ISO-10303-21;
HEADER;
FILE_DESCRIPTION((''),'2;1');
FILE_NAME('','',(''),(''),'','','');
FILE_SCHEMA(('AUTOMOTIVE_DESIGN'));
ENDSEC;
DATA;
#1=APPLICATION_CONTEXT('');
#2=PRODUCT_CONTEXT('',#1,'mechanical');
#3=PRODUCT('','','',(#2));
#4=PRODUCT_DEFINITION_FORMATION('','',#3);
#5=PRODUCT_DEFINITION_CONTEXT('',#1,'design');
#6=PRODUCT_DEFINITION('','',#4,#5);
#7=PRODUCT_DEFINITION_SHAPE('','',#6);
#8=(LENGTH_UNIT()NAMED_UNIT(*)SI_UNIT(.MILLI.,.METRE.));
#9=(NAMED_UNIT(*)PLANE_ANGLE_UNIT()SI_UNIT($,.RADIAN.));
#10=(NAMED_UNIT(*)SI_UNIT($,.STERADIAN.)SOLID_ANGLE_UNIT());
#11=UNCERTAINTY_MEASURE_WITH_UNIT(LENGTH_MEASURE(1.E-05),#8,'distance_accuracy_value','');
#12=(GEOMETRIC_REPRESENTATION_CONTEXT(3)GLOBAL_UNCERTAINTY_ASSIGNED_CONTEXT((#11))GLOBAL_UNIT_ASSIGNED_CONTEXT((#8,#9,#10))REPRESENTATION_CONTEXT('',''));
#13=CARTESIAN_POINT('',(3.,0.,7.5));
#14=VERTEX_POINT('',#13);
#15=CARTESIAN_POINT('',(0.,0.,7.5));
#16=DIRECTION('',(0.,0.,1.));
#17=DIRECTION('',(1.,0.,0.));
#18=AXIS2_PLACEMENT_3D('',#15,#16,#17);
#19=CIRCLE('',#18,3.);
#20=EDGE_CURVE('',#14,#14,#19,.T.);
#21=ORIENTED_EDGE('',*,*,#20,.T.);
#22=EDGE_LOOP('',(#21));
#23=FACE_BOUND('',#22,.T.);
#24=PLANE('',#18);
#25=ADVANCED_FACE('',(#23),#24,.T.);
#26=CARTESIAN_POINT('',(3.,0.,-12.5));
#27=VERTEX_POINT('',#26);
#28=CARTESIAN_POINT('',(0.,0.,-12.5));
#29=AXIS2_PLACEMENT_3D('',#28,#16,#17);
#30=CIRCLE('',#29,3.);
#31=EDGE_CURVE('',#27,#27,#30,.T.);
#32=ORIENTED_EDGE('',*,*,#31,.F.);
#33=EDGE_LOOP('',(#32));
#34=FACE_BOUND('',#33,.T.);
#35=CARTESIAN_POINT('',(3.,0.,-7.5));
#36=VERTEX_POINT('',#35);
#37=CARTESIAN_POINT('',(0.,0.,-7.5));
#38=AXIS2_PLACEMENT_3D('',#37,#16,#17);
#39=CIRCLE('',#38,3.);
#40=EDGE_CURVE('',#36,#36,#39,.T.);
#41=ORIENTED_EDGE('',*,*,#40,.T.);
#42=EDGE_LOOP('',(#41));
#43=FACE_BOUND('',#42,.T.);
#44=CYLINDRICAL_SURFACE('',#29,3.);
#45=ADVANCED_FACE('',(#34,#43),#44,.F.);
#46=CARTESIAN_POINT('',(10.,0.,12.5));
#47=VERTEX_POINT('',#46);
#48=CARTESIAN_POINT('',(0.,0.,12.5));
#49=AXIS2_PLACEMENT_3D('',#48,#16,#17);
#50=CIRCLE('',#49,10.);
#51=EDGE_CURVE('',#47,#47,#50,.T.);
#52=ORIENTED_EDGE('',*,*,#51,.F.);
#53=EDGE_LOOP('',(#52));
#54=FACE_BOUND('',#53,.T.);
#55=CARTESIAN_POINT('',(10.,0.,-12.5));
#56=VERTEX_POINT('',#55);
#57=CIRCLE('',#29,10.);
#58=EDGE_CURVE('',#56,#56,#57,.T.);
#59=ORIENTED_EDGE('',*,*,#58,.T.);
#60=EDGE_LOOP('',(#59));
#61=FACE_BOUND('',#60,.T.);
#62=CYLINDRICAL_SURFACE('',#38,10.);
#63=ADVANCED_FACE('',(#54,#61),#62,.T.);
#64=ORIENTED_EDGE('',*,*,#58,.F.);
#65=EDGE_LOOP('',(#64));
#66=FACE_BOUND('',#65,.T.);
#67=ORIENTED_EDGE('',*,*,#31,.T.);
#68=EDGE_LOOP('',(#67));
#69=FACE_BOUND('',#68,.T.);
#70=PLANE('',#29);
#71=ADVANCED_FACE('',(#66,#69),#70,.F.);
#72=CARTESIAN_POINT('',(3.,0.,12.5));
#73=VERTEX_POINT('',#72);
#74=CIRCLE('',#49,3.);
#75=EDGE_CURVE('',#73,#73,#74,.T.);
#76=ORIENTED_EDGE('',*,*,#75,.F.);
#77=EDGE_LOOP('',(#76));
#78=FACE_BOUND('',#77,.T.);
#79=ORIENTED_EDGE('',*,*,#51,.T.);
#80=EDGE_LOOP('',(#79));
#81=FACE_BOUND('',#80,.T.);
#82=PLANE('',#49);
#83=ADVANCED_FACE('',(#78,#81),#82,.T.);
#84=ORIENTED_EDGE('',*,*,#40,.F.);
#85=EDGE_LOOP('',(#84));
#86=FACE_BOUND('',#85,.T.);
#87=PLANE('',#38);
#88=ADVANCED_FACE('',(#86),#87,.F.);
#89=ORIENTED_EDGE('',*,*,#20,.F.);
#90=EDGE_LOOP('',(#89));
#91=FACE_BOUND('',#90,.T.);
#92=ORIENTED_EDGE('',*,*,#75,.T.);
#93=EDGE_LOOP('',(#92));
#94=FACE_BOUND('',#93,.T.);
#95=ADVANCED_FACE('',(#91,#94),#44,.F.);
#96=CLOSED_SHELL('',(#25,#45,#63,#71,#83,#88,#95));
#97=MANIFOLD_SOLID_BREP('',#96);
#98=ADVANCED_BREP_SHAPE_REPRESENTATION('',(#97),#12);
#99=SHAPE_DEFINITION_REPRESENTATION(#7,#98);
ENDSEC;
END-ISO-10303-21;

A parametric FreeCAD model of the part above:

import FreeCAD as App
import Part
import Sketcher

doc = App.newDocument("Part")
params = doc.addObject("Spreadsheet::Sheet", "Params")
for row, (alias, value) in enumerate([
    ("sketch1_diameter", "20 mm"),
    ("pad1_length", "7.5 mm"),
    ("pad1_length2", "7.5 mm"),
    ("sketch2_diameter", "20 mm"),
    ("sketch2_diameter2", "6 mm"),
    ("pad2_length", "12.5 mm"),
    ("pad2_length2", "12.5 mm"),
], start=1):
    params.set(f"A{row}", alias)
    params.set(f"B{row}", "=" + value)
    params.setAlias(f"B{row}", alias)

body = doc.addObject("PartDesign::Body", "Body")

sketch1 = doc.addObject("Sketcher::SketchObject", "Sketch")
body.addObject(sketch1)
sketch1.AttachmentSupport = (doc.XY_Plane, [""])
sketch1.MapMode = "FlatFace"
sketch1.addGeometry(Part.Circle(App.Vector(0, 0, 0), App.Vector(0, 0, 1), 10), False)
sketch1.addConstraint([
    Sketcher.Constraint("Coincident", 0, 3, -1, 1),
    Sketcher.Constraint("Diameter", 0, 20.0),
])
sketch1.setExpression("Constraints[1]", "Params.sketch1_diameter")
pad1 = doc.addObject("PartDesign::Pad", "Pad")
body.addObject(pad1)
pad1.Profile = sketch1
pad1.Type = "TwoLengths"
pad1.setExpression("Length", "Params.pad1_length")
pad1.setExpression("Length2", "Params.pad1_length2")

sketch2 = doc.addObject("Sketcher::SketchObject", "Sketch001")
body.addObject(sketch2)
sketch2.AttachmentSupport = (doc.XY_Plane, [""])
sketch2.MapMode = "FlatFace"
sketch2.addGeometry([
    Part.Circle(App.Vector(0, 0, 0), App.Vector(0, 0, 1), 10),
    Part.Circle(App.Vector(0, 0, 0), App.Vector(0, 0, 1), 3),
], False)
sketch2.addConstraint([
    Sketcher.Constraint("Coincident", 0, 3, -1, 1),
    Sketcher.Constraint("Coincident", 1, 3, -1, 1),
    Sketcher.Constraint("Diameter", 0, 20.0),
    Sketcher.Constraint("Diameter", 1, 6.0),
])
sketch2.setExpression("Constraints[2]", "Params.sketch2_diameter")
sketch2.setExpression("Constraints[3]", "Params.sketch2_diameter2")
pad2 = doc.addObject("PartDesign::Pad", "Pad001")
body.addObject(pad2)
pad2.Profile = sketch2
pad2.Type = "TwoLengths"
pad2.setExpression("Length", "Params.pad2_length")
pad2.setExpression("Length2", "Params.pad2_length2")

doc.recompute()
